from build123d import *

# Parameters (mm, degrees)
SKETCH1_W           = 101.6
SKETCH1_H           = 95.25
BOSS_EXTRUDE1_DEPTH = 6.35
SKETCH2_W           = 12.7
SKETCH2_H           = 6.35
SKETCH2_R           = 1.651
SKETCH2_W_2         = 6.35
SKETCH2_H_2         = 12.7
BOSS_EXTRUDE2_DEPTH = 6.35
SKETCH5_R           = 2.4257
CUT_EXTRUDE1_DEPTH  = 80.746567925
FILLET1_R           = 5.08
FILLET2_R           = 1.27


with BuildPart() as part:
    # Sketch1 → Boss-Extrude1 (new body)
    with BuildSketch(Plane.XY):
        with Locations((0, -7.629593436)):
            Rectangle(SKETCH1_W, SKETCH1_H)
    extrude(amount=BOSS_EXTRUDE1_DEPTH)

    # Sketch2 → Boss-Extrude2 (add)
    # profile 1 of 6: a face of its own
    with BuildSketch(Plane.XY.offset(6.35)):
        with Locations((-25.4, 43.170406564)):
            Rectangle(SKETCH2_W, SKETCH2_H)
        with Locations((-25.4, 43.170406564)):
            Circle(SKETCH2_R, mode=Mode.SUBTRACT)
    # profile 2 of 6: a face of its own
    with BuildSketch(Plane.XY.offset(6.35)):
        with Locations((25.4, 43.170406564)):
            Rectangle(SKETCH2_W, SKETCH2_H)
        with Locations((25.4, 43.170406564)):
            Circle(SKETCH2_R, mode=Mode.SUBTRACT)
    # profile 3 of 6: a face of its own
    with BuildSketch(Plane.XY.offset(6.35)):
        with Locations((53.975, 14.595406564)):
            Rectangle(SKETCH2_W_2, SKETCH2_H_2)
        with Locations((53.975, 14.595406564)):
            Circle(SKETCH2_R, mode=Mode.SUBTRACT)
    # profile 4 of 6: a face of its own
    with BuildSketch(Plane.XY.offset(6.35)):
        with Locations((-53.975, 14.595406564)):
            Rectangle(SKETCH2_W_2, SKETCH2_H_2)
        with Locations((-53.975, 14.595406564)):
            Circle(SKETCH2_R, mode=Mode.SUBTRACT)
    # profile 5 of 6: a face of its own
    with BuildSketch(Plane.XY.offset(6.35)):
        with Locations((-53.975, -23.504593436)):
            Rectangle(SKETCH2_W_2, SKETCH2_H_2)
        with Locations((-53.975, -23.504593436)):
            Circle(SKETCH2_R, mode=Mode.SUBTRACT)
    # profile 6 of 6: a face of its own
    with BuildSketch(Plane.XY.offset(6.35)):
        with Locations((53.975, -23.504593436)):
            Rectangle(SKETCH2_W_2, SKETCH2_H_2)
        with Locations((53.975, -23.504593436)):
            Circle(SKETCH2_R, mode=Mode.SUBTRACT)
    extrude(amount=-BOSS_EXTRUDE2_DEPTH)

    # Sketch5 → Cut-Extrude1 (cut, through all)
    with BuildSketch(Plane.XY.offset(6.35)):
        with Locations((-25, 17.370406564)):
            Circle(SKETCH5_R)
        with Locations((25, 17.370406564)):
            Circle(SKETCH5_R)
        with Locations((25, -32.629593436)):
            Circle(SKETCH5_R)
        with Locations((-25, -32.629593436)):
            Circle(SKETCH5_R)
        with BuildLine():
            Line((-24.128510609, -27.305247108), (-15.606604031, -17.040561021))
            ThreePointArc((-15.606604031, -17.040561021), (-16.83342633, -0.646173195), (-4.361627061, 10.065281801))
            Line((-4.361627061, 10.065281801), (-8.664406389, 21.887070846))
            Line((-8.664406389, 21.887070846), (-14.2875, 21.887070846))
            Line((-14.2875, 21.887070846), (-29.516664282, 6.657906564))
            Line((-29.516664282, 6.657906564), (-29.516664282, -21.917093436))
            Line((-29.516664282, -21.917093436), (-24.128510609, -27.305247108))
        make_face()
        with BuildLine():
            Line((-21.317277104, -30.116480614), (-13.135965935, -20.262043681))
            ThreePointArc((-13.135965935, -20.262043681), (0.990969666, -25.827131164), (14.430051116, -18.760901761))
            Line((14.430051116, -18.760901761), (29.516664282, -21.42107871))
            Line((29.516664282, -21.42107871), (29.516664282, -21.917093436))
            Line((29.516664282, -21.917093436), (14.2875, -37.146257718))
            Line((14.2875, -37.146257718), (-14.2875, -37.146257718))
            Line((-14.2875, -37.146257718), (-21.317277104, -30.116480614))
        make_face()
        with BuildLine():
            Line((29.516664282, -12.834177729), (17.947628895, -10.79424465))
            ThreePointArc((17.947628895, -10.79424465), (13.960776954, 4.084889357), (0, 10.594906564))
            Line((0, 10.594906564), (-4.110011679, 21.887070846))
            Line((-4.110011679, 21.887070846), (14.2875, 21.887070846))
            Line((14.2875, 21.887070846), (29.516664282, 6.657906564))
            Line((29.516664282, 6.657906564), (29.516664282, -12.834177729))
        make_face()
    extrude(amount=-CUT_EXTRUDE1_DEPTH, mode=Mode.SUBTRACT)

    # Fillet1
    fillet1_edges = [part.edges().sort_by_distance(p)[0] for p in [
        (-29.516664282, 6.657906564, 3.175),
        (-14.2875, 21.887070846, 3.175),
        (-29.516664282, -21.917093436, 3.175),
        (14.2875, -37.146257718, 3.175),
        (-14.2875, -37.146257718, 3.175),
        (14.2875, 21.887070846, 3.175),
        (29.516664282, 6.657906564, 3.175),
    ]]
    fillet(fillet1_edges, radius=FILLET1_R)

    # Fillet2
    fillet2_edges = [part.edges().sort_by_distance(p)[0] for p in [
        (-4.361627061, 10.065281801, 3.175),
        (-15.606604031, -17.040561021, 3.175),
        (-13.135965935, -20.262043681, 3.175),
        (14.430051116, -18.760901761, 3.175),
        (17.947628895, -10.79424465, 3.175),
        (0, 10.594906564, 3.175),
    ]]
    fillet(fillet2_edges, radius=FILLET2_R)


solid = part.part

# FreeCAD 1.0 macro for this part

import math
import FreeCAD as App
import Part
import Sketcher

V = App.Vector
Q = App.Units.Quantity


def edges_at(feature, points):
    """Names of the edges that pass closest to the given points."""
    edges = feature.Shape.Edges
    near = lambda p: min(range(len(edges)), key=lambda i: edges[i].distToShape(Part.Vertex(*p))[0])
    return sorted({f"Edge{near(p) + 1}" for p in points})

doc = App.newDocument("Part")
params = doc.addObject("Spreadsheet::Sheet", "Params")
for row, (alias, value) in enumerate([
    ("sketch1_width", "4 in"),
    ("sketch1_height", "3.75 in"),
    ("pad1_length", "0.25 in"),
    ("sketch2_diameter", "0.13 in"),
    ("sketch2_width", "0.5 in"),
    ("pad2_length", "0.25 in"),
    ("sketch3_diameter", "0.191 in"),
    ("sketch3_length", "0.3 in"),
    ("sketch3_width", "1.125 in"),
    ("fillet_radius", "0.2 in"),
    ("fillet2_radius", "0.05 in"),
], start=1):
    params.set(f"A{row}", alias)
    params.set(f"B{row}", "=" + value)
    params.setAlias(f"B{row}", alias)

body = doc.addObject("PartDesign::Body", "Body")

# Sketch on XY plane
sketch1 = body.newObject("Sketcher::SketchObject", "Sketch")
sketch1.AttachmentSupport = (doc.getObject("XY_Plane"), [""])
sketch1.MapMode = "FlatFace"
sketch1.addGeometry([
    Part.LineSegment(V(-51, 40, 0), V(-51, -55, 0)),
    Part.LineSegment(V(-51, -55, 0), V(51, -55, 0)),
    Part.LineSegment(V(51, -55, 0), V(51, 40, 0)),
    Part.LineSegment(V(51, 40, 0), V(-51, 40, 0)),
], False)
sketch1.addConstraint([
    Sketcher.Constraint("Coincident", 0, 2, 1, 1),
    Sketcher.Constraint("Coincident", 1, 2, 2, 1),
    Sketcher.Constraint("Coincident", 2, 2, 3, 1),
    Sketcher.Constraint("Coincident", 3, 2, 0, 1),
    Sketcher.Constraint("Vertical", 0),
    Sketcher.Constraint("Horizontal", 1),
    Sketcher.Constraint("Vertical", 2),
    Sketcher.Constraint("Horizontal", 3),
    Sketcher.Constraint("DistanceX", 1, 1, 1, 2, Q("4 in")),
    Sketcher.Constraint("DistanceX", 0, 2, -1, 1, Q("2 in")),
    Sketcher.Constraint("DistanceY", 0, 2, 0, 1, Q("3.75 in")),
    Sketcher.Constraint("DistanceY", 0, 2, -1, 1, 55.254593),
])
sketch1.setExpression("Constraints[8]", "Params.sketch1_width")
sketch1.setExpression("Constraints[10]", "Params.sketch1_height")
pad1 = body.newObject("PartDesign::Pad", "Pad")
pad1.Profile = sketch1
pad1.setExpression("Length", "Params.pad1_length")

# Sketch on XY plane
sketch2 = body.newObject("Sketcher::SketchObject", "Sketch001")
sketch2.AttachmentSupport = (doc.getObject("XY_Plane"), [""])
sketch2.MapMode = "FlatFace"
sketch2.AttachmentOffset = App.Placement(V(0, 0, 0.25 * 25.4), App.Rotation())
sketch2.addGeometry([
    Part.LineSegment(V(-31.8, 46.3, 0), V(-31.8, 40, 0)),  # 0
    Part.LineSegment(V(-31.8, 40, 0), V(-19.1, 40, 0)),  # 1
    Part.LineSegment(V(-19.1, 40, 0), V(-19.1, 46.3, 0)),  # 2
    Part.LineSegment(V(-19.1, 46.3, 0), V(-31.8, 46.3, 0)),  # 3
    Part.Circle(V(-25.4, 43.2, 0), V(0, 0, 1), 1.7),  # 4
    Part.LineSegment(V(19.1, 46.3, 0), V(19.1, 40, 0)),  # 5
    Part.LineSegment(V(19.1, 40, 0), V(31.8, 40, 0)),  # 6
    Part.LineSegment(V(31.8, 40, 0), V(31.8, 46.3, 0)),  # 7
    Part.LineSegment(V(31.8, 46.3, 0), V(19.1, 46.3, 0)),  # 8
    Part.Circle(V(25.4, 43.2, 0), V(0, 0, 1), 1.7),  # 9
    Part.LineSegment(V(50.8, 20.9, 0), V(50.8, 8.2, 0)),  # 10
    Part.LineSegment(V(50.8, 8.2, 0), V(57.1, 8.2, 0)),  # 11
    Part.LineSegment(V(57.1, 8.2, 0), V(57.1, 20.9, 0)),  # 12
    Part.LineSegment(V(57.1, 20.9, 0), V(50.8, 20.9, 0)),  # 13
    Part.Circle(V(54, 14.6, 0), V(0, 0, 1), 1.7),  # 14
    Part.LineSegment(V(-57.1, 20.9, 0), V(-57.1, 8.2, 0)),  # 15
    Part.LineSegment(V(-57.1, 8.2, 0), V(-50.8, 8.2, 0)),  # 16
    Part.LineSegment(V(-50.8, 8.2, 0), V(-50.8, 20.9, 0)),  # 17
    Part.LineSegment(V(-50.8, 20.9, 0), V(-57.1, 20.9, 0)),  # 18
    Part.Circle(V(-54, 14.6, 0), V(0, 0, 1), 1.7),  # 19
    Part.LineSegment(V(-57.1, -17.2, 0), V(-57.1, -29.9, 0)),  # 20
    Part.LineSegment(V(-57.1, -29.9, 0), V(-50.8, -29.9, 0)),  # 21
    Part.LineSegment(V(-50.8, -29.9, 0), V(-50.8, -17.2, 0)),  # 22
    Part.LineSegment(V(-50.8, -17.2, 0), V(-57.1, -17.2, 0)),  # 23
    Part.Circle(V(-54, -23.5, 0), V(0, 0, 1), 1.7),  # 24
    Part.LineSegment(V(50.8, -17.2, 0), V(50.8, -29.9, 0)),  # 25
    Part.LineSegment(V(50.8, -29.9, 0), V(57.1, -29.9, 0)),  # 26
    Part.LineSegment(V(57.1, -29.9, 0), V(57.1, -17.2, 0)),  # 27
    Part.LineSegment(V(57.1, -17.2, 0), V(50.8, -17.2, 0)),  # 28
    Part.Circle(V(54, -23.5, 0), V(0, 0, 1), 1.7),  # 29
], False)
sketch2.addConstraint([
    Sketcher.Constraint("Coincident", 0, 2, 1, 1),
    Sketcher.Constraint("Coincident", 1, 2, 2, 1),
    Sketcher.Constraint("Coincident", 2, 2, 3, 1),
    Sketcher.Constraint("Coincident", 3, 2, 0, 1),
    Sketcher.Constraint("Coincident", 5, 2, 6, 1),
    Sketcher.Constraint("Coincident", 6, 2, 7, 1),
    Sketcher.Constraint("Coincident", 7, 2, 8, 1),
    Sketcher.Constraint("Coincident", 8, 2, 5, 1),
    Sketcher.Constraint("Coincident", 10, 2, 11, 1),
    Sketcher.Constraint("Coincident", 11, 2, 12, 1),
    Sketcher.Constraint("Coincident", 12, 2, 13, 1),
    Sketcher.Constraint("Coincident", 13, 2, 10, 1),
    Sketcher.Constraint("Coincident", 15, 2, 16, 1),
    Sketcher.Constraint("Coincident", 16, 2, 17, 1),
    Sketcher.Constraint("Coincident", 17, 2, 18, 1),
    Sketcher.Constraint("Coincident", 18, 2, 15, 1),
    Sketcher.Constraint("Coincident", 20, 2, 21, 1),
    Sketcher.Constraint("Coincident", 21, 2, 22, 1),
    Sketcher.Constraint("Coincident", 22, 2, 23, 1),
    Sketcher.Constraint("Coincident", 23, 2, 20, 1),
    Sketcher.Constraint("Coincident", 25, 2, 26, 1),
    Sketcher.Constraint("Coincident", 26, 2, 27, 1),
    Sketcher.Constraint("Coincident", 27, 2, 28, 1),
    Sketcher.Constraint("Coincident", 28, 2, 25, 1),
    Sketcher.Constraint("Vertical", 0),
    Sketcher.Constraint("Horizontal", 1),
    Sketcher.Constraint("Vertical", 2),
    Sketcher.Constraint("Horizontal", 3),
    Sketcher.Constraint("Vertical", 5),
    Sketcher.Constraint("Horizontal", 6),
    Sketcher.Constraint("Vertical", 7),
    Sketcher.Constraint("Horizontal", 8),
    Sketcher.Constraint("Vertical", 10),
    Sketcher.Constraint("Horizontal", 11),
    Sketcher.Constraint("Vertical", 12),
    Sketcher.Constraint("Horizontal", 13),
    Sketcher.Constraint("Vertical", 15),
    Sketcher.Constraint("Horizontal", 16),
    Sketcher.Constraint("Vertical", 17),
    Sketcher.Constraint("Horizontal", 18),
    Sketcher.Constraint("Vertical", 20),
    Sketcher.Constraint("Horizontal", 21),
    Sketcher.Constraint("Vertical", 22),
    Sketcher.Constraint("Horizontal", 23),
    Sketcher.Constraint("Vertical", 25),
    Sketcher.Constraint("Horizontal", 26),
    Sketcher.Constraint("Vertical", 27),
    Sketcher.Constraint("Horizontal", 28),
    Sketcher.Constraint("Equal", 4, 9),
    Sketcher.Constraint("Equal", 9, 14),
    Sketcher.Constraint("Equal", 14, 19),
    Sketcher.Constraint("Equal", 19, 24),
    Sketcher.Constraint("Equal", 24, 29),
    Sketcher.Constraint("Symmetric", 4, 3, 9, 3, -2),
    Sketcher.Constraint("Symmetric", 14, 3, 19, 3, -2),
    Sketcher.Constraint("Symmetric", 24, 3, 29, 3, -2),
    Sketcher.Constraint("Symmetric", 1, 2, 5, 2, -2),
    Sketcher.Constraint("Symmetric", 3, 2, 7, 2, -2),
    Sketcher.Constraint("Symmetric", 11, 2, 15, 2, -2),
    Sketcher.Constraint("Symmetric", 13, 2, 17, 2, -2),
    Sketcher.Constraint("Symmetric", 21, 2, 25, 2, -2),
    Sketcher.Constraint("Symmetric", 23, 2, 27, 2, -2),
    Sketcher.Constraint("Vertical", 19, 3, 24, 3),
    Sketcher.Constraint("Vertical", 18, 2, 20, 2),
    Sketcher.Constraint("Vertical", 17, 2, 21, 2),
    Sketcher.Constraint("Equal", 28, 0),
    Sketcher.Constraint("Equal", 8, 10),
    Sketcher.Constraint("Equal", 17, 20),
    Sketcher.Constraint("Diameter", 4, Q("0.13 in")),
    Sketcher.Constraint("DistanceX", 1, 1, 1, 2, Q("0.5 in")),
    Sketcher.Constraint("DistanceX", 4, 3, -1, 1, Q("1 in")),
    Sketcher.Constraint("DistanceX", -1, 1, 10, 2, Q("2 in")),
    Sketcher.Constraint("DistanceY", 19, 3, 0, 2, Q("1 in")),
    Sketcher.Constraint("DistanceX", 1, 2, 6, 2, Q("2 in")),
    Sketcher.Constraint("DistanceX", 6, 2, 11, 2, Q("1 in")),
    Sketcher.Constraint("DistanceY", 12, 2, 7, 2, Q("1 in")),
    Sketcher.Constraint("DistanceY", 20, 2, 18, 2, Q("2 in")),
    Sketcher.Constraint("DistanceY", 24, 3, 19, 3, Q("1.5 in")),
    Sketcher.Constraint("DistanceX", 19, 3, 14, 3, Q("4.25 in")),
    Sketcher.Constraint("DistanceY", 14, 3, 9, 3, Q("1.125 in")),
    Sketcher.Constraint("DistanceY", -1, 1, 4, 3, 43.170407),
])
sketch2.setExpression("Constraints[68]", "Params.sketch2_diameter")
sketch2.setExpression("Constraints[69]", "Params.sketch2_width")
pad2 = body.newObject("PartDesign::Pad", "Pad001")
pad2.Profile = sketch2
pad2.setExpression("Length", "Params.pad2_length")
pad2.Reversed = True

# Sketch on XY plane
sketch3 = body.newObject("Sketcher::SketchObject", "Sketch002")
sketch3.AttachmentSupport = (doc.getObject("XY_Plane"), [""])
sketch3.MapMode = "FlatFace"
sketch3.AttachmentOffset = App.Placement(V(0, 0, 0.25 * 25.4), App.Rotation())
sketch3.addGeometry([
    Part.Circle(V(-25, 17.37, 0), V(0, 0, 1), 2.43),  # 0
    Part.Circle(V(25, 17.37, 0), V(0, 0, 1), 2.43),  # 1
    Part.Circle(V(25, -32.63, 0), V(0, 0, 1), 2.43),  # 2
    Part.Circle(V(-25, -32.63, 0), V(0, 0, 1), 2.43),  # 3
    Part.LineSegment(V(-24.13, -27.31, 0), V(-15.61, -17.04, 0)),  # 4
    Part.ArcOfCircle(Part.Circle(V(0, -7.63, 0), V(0, 0, 1), 18.22), math.radians(104), math.radians(211)),  # 5
    Part.LineSegment(V(-4.36, 10.07, 0), V(-8.66, 21.89, 0)),  # 6
    Part.LineSegment(V(-8.66, 21.89, 0), V(-14.29, 21.89, 0)),  # 7
    Part.LineSegment(V(-14.29, 21.89, 0), V(-29.52, 6.66, 0)),  # 8
    Part.LineSegment(V(-29.52, 6.66, 0), V(-29.52, -21.92, 0)),  # 9
    Part.LineSegment(V(-29.52, -21.92, 0), V(-24.13, -27.31, 0)),  # 10
    Part.LineSegment(V(-13.14, -20.26, 0), V(-21.32, -30.12, 0)),  # 11
    Part.LineSegment(V(-21.32, -30.12, 0), V(-14.29, -37.15, 0)),  # 12
    Part.LineSegment(V(-14.29, -37.15, 0), V(14.29, -37.15, 0)),  # 13
    Part.LineSegment(V(14.29, -37.15, 0), V(29.52, -21.92, 0)),  # 14
    Part.LineSegment(V(29.52, -21.92, 0), V(29.52, -21.42, 0)),  # 15
    Part.LineSegment(V(29.52, -21.42, 0), V(14.43, -18.76, 0)),  # 16
    Part.ArcOfCircle(Part.Circle(V(0, -7.63, 0), V(0, 0, 1), 18.22), math.radians(-136), math.radians(-38)),  # 17
    Part.LineSegment(V(17.95, -10.79, 0), V(29.52, -12.83, 0)),  # 18
    Part.LineSegment(V(29.52, -12.83, 0), V(29.52, 6.66, 0)),  # 19
    Part.LineSegment(V(29.52, 6.66, 0), V(14.29, 21.89, 0)),  # 20
    Part.LineSegment(V(14.29, 21.89, 0), V(-4.11, 21.89, 0)),  # 21
    Part.LineSegment(V(-4.11, 21.89, 0), V(0, 10.59, 0)),  # 22
    Part.ArcOfCircle(Part.Circle(V(0, -7.63, 0), V(0, 0, 1), 18.22), math.radians(-10), math.radians(90)),  # 23
], False)
sketch3.addConstraint([
    Sketcher.Constraint("Coincident", 4, 2, 5, 2),
    Sketcher.Constraint("Coincident", 5, 1, 6, 1),
    Sketcher.Constraint("Coincident", 6, 2, 7, 1),
    Sketcher.Constraint("Coincident", 7, 2, 8, 1),
    Sketcher.Constraint("Coincident", 8, 2, 9, 1),
    Sketcher.Constraint("Coincident", 9, 2, 10, 1),
    Sketcher.Constraint("Coincident", 10, 2, 4, 1),
    Sketcher.Constraint("Coincident", 11, 2, 12, 1),
    Sketcher.Constraint("Coincident", 12, 2, 13, 1),
    Sketcher.Constraint("Coincident", 13, 2, 14, 1),
    Sketcher.Constraint("Coincident", 14, 2, 15, 1),
    Sketcher.Constraint("Coincident", 15, 2, 16, 1),
    Sketcher.Constraint("Coincident", 16, 2, 17, 2),
    Sketcher.Constraint("Coincident", 17, 1, 11, 1),
    Sketcher.Constraint("Coincident", 18, 2, 19, 1),
    Sketcher.Constraint("Coincident", 19, 2, 20, 1),
    Sketcher.Constraint("Coincident", 20, 2, 21, 1),
    Sketcher.Constraint("Coincident", 21, 2, 22, 1),
    Sketcher.Constraint("Coincident", 22, 2, 23, 2),
    Sketcher.Constraint("Coincident", 23, 1, 18, 1),
    Sketcher.Constraint("Horizontal", 7),
    Sketcher.Constraint("Vertical", 9),
    Sketcher.Constraint("Horizontal", 13),
    Sketcher.Constraint("Vertical", 15),
    Sketcher.Constraint("Vertical", 19),
    Sketcher.Constraint("Horizontal", 21),
    Sketcher.Constraint("Coincident", 17, 3, 5, 3),
    Sketcher.Constraint("Coincident", 23, 3, 5, 3),
    Sketcher.Constraint("Equal", 0, 1),
    Sketcher.Constraint("Equal", 1, 2),
    Sketcher.Constraint("Equal", 2, 3),
    Sketcher.Constraint("Equal", 5, 17),
    Sketcher.Constraint("Equal", 17, 23),
    Sketcher.Constraint("Symmetric", 0, 3, 1, 3, -2),
    Sketcher.Constraint("Symmetric", 2, 3, 3, 3, -2),
    Sketcher.Constraint("Symmetric", 9, 2, 14, 2, -2),
    Sketcher.Constraint("Symmetric", 8, 2, 19, 2, -2),
    Sketcher.Constraint("Symmetric", 7, 2, 20, 2, -2),
    Sketcher.Constraint("PointOnObject", 5, 3, -2),
    Sketcher.Constraint("PointOnObject", 22, 2, -2),
    Sketcher.Constraint("Perpendicular", 8, 10),
    Sketcher.Constraint("Parallel", 4, 11),
    Sketcher.Constraint("Parallel", 10, 12),
    Sketcher.Constraint("Perpendicular", 12, 14),
    Sketcher.Constraint("Parallel", 16, 18),
    Sketcher.Constraint("Perpendicular", 14, 20),
    Sketcher.Constraint("Parallel", 6, 22),
    Sketcher.Constraint("Vertical", 1, 3, 2, 3),
    Sketcher.Constraint("Vertical", 7, 2, 12, 2),
    Sketcher.Constraint("Vertical", 13, 2, 20, 2),
    Sketcher.Constraint("Equal", 13, 9),
    Sketcher.Constraint("Diameter", 0, Q("0.191 in")),
    Sketcher.Constraint("Angle", 6, Q("110 deg")),
    Sketcher.Constraint("Angle", 16, Q("170 deg")),
    Sketcher.Constraint("Distance", 10, Q("0.3 in")),
    Sketcher.Constraint("Angle", 4, Q("50.3 deg")),
    Sketcher.Constraint("Radius", 5, Q("0.7175 in")),
    Sketcher.Constraint("DistanceX", 13, 1, 13, 2, Q("1.125 in")),
    Sketcher.Constraint("DistanceY", 9, 2, 5, 3, Q("0.5625 in")),
    Sketcher.Constraint("DistanceY", 11, 2, 4, 2, Q("0.5148 in")),
    Sketcher.Constraint("DistanceX", 21, 2, 21, 1, 18.397512),
    Sketcher.Constraint("DistanceX", 0, 3, -1, 1, 25.0),
    Sketcher.Constraint("DistanceY", 16, 2, -1, 1, 18.760902),
    Sketcher.Constraint("DistanceY", 2, 3, 1, 3, 50.0),
    Sketcher.Constraint("DistanceY", 5, 3, 0, 3, 25.0),
    Sketcher.Constraint("DistanceY", 15, 2, 18, 2, 8.586901),
    Sketcher.Constraint("Distance", 16, 15.319348),
    Sketcher.Constraint("DistanceX", 7, 2, 7, 1, 5.623094),
])
sketch3.setExpression("Constraints[51]", "Params.sketch3_diameter")
sketch3.setExpression("Constraints[54]", "Params.sketch3_length")
sketch3.setExpression("Constraints[57]", "Params.sketch3_width")
pocket1 = body.newObject("PartDesign::Pocket", "Pocket")
pocket1.Profile = sketch3
pocket1.Type = "ThroughAll"
doc.recompute()

fillet = body.newObject("PartDesign::Fillet", "Fillet")
fillet.Base = (pocket1, edges_at(pocket1, [
    (-29.517, 6.658, 3.175),
    (-14.287, 21.887, 3.175),
    (-29.517, -21.917, 3.175),
    (14.287, -37.146, 3.175),
    (-14.287, -37.146, 3.175),
    (14.287, 21.887, 3.175),
    (29.517, 6.658, 3.175),
]))
fillet.setExpression("Radius", "Params.fillet_radius")
doc.recompute()

fillet2 = body.newObject("PartDesign::Fillet", "Fillet001")
fillet2.Base = (fillet, edges_at(fillet, [
    (-4.362, 10.065, 3.175),
    (-15.607, -17.041, 3.175),
    (-13.136, -20.262, 3.175),
    (14.43, -18.761, 3.175),
    (17.948, -10.794, 3.175),
    (0, 10.595, 3.175),
]))
fillet2.setExpression("Radius", "Params.fillet2_radius")

doc.recompute()
